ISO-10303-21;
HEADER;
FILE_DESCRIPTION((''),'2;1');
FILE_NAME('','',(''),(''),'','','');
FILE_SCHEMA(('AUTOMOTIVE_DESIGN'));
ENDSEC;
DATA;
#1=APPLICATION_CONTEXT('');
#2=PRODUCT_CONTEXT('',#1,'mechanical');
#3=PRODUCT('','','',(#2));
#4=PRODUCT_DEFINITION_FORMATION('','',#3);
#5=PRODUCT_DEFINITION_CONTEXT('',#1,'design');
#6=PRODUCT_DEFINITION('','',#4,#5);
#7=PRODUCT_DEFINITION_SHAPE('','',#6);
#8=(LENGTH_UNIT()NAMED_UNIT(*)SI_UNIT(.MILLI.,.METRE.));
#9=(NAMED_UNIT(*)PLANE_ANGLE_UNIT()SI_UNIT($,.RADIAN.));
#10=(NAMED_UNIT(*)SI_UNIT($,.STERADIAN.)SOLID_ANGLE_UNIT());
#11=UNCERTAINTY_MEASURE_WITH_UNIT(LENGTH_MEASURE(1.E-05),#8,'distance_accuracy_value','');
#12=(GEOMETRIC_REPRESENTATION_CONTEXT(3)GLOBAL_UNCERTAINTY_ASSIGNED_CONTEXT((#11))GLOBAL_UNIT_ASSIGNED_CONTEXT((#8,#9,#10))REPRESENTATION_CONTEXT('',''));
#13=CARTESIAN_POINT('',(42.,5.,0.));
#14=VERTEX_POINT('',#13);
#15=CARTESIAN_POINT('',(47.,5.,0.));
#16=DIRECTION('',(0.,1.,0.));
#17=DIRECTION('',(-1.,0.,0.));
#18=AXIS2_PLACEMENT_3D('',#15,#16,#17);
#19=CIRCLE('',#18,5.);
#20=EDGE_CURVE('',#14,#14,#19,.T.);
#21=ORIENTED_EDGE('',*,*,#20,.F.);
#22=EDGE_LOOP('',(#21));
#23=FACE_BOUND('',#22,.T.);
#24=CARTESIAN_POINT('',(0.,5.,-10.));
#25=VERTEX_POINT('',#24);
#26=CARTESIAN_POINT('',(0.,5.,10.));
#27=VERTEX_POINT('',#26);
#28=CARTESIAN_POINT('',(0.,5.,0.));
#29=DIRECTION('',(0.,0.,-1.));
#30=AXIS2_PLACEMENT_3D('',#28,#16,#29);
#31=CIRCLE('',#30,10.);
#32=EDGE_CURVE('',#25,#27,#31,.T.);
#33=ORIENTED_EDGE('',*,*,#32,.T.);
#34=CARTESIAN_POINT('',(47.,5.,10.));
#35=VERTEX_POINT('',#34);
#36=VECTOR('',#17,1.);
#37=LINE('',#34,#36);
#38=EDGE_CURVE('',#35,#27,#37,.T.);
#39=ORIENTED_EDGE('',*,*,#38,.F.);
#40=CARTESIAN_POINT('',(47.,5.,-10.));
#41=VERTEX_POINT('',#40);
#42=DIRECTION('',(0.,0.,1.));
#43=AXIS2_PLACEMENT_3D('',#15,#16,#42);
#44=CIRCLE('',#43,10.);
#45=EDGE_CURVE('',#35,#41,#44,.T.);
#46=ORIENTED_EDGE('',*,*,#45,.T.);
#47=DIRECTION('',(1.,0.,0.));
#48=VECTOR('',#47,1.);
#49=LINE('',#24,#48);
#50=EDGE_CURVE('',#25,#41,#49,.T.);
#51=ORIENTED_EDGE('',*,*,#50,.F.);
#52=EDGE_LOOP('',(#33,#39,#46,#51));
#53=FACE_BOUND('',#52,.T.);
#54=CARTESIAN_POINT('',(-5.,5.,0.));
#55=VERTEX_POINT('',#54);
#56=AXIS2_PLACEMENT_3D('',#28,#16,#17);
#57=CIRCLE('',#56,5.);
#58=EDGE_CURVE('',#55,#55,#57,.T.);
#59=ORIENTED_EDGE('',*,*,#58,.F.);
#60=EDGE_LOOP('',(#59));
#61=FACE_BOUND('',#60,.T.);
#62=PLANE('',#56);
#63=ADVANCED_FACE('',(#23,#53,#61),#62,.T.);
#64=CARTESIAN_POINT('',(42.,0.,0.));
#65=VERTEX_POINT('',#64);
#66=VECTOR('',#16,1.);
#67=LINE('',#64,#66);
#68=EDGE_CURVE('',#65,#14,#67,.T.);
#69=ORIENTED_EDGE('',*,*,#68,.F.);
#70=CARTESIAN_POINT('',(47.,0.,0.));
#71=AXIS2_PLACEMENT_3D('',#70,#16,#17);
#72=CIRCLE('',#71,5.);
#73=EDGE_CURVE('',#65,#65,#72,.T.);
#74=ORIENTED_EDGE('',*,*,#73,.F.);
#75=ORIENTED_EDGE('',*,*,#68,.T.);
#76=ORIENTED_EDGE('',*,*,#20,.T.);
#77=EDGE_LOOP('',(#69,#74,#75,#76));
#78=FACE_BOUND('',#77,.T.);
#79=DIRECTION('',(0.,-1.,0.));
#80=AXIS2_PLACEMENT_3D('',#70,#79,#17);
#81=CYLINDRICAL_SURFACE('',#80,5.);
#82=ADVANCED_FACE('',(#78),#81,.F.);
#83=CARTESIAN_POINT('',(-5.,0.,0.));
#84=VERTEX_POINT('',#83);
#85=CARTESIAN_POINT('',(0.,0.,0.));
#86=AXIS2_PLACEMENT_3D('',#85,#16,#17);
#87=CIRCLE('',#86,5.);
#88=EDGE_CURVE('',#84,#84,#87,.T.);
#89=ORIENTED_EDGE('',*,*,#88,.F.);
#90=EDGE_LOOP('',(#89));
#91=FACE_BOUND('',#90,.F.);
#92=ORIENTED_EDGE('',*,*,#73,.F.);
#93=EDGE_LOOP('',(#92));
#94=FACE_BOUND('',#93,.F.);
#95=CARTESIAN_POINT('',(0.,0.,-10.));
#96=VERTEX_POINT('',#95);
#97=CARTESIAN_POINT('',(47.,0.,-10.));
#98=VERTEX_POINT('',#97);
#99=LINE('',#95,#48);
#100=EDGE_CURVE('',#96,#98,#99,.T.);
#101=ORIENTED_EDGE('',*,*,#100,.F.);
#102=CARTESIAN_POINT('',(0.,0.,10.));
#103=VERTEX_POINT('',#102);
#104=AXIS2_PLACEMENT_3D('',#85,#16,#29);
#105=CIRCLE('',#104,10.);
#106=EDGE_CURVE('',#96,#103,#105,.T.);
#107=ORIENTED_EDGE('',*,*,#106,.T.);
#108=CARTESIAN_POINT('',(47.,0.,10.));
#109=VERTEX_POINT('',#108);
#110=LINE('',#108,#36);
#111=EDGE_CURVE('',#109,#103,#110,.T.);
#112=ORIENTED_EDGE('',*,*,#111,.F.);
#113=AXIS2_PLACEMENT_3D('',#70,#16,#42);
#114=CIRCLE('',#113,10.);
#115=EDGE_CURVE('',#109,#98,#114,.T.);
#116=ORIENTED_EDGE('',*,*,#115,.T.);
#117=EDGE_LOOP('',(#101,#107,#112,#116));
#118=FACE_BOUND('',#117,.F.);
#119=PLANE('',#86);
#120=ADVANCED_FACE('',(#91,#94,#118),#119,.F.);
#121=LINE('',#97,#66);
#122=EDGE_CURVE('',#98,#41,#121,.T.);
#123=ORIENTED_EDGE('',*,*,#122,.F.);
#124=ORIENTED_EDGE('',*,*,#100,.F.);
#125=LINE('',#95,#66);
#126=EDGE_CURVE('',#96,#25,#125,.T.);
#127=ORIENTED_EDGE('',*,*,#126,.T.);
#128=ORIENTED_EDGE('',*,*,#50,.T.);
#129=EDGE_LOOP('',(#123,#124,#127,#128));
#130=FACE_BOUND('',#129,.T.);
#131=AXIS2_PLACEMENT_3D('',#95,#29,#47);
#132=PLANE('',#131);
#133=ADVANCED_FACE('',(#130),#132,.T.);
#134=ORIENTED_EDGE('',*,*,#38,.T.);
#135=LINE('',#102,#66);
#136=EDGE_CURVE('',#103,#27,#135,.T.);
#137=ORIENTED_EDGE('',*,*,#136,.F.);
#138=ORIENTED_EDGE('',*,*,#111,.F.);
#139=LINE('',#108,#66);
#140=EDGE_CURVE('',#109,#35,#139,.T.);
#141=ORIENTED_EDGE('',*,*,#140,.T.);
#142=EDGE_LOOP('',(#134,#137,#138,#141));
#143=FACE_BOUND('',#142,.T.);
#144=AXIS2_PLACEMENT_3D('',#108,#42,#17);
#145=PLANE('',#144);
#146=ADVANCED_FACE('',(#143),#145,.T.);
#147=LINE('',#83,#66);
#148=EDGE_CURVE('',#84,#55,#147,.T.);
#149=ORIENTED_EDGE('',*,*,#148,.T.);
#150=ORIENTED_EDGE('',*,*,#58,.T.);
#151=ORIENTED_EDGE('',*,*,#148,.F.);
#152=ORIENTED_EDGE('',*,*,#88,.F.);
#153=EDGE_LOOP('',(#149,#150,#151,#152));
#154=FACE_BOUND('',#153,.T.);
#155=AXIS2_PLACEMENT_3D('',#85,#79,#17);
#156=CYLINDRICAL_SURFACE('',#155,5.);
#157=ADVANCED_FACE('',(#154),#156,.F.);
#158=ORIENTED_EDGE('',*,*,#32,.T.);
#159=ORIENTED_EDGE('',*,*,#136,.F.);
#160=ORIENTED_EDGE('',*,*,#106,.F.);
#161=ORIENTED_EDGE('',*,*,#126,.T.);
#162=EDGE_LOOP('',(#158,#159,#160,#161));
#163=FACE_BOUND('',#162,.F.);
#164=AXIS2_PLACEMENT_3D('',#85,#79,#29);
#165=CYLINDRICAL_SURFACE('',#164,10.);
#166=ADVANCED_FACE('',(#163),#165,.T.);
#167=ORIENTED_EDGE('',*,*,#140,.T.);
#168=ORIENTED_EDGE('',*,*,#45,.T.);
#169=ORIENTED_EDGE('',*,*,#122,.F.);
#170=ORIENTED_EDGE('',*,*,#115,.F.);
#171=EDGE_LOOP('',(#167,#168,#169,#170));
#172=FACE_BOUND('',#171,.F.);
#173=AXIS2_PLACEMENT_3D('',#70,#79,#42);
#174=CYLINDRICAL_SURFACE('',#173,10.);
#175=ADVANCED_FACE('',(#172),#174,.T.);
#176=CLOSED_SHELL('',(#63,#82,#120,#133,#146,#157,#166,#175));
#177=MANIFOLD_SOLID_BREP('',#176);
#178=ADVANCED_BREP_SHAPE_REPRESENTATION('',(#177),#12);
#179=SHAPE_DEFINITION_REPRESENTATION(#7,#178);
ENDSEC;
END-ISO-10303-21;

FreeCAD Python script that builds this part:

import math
import FreeCAD as App
import Part
import Sketcher
Q = App.Units.Quantity

doc = App.newDocument("Part")
body = doc.addObject("PartDesign::Body", "Body")

# Sketch on XZ plane
sketch1 = doc.addObject("Sketcher::SketchObject", "Sketch")
body.addObject(sketch1)
sketch1.AttachmentSupport = (doc.XZ_Plane, [""])
sketch1.MapMode = "FlatFace"
sketch1.addGeometry([
    Part.LineSegment(App.Vector(0, 10, 0), App.Vector(47, 10, 0)),  # 0
    Part.ArcOfCircle(Part.Circle(App.Vector(47, 0, 0), App.Vector(0, 0, 1), 10), math.radians(-90), math.radians(90)),  # 1
    Part.LineSegment(App.Vector(47, -10, 0), App.Vector(0, -10, 0)),  # 2
    Part.ArcOfCircle(Part.Circle(App.Vector(0, 0, 0), App.Vector(0, 0, 1), 10), math.radians(90), math.radians(270)),  # 3
    Part.Circle(App.Vector(47, 0, 0), App.Vector(0, 0, 1), 5),  # 4
    Part.Circle(App.Vector(0, 0, 0), App.Vector(0, 0, 1), 5),  # 5
], False)
sketch1.addConstraint([
    Sketcher.Constraint("Tangent", 0, 2, 1, 2),
    Sketcher.Constraint("Tangent", 1, 1, 2, 1),
    Sketcher.Constraint("Tangent", 2, 2, 3, 2),
    Sketcher.Constraint("Tangent", 3, 1, 0, 1),
    Sketcher.Constraint("Horizontal", 0),
    Sketcher.Constraint("Horizontal", 2),
    Sketcher.Constraint("Coincident", 3, 3, -1, 1),
    Sketcher.Constraint("Coincident", 5, 3, -1, 1),
    Sketcher.Constraint("Coincident", 4, 3, 1, 3),
    Sketcher.Constraint("Equal", 4, 5),
    Sketcher.Constraint("Diameter", 4, Q("10 mm")),
    Sketcher.Constraint("Radius", 1, Q("10 mm")),
    Sketcher.Constraint("DistanceX", 0, 1, 0, 2, Q("47 mm")),
])
pad1 = doc.addObject("PartDesign::Pad", "Pad")
body.addObject(pad1)
pad1.Profile = sketch1
pad1.Length = 5
pad1.Reversed = True

doc.recompute()
